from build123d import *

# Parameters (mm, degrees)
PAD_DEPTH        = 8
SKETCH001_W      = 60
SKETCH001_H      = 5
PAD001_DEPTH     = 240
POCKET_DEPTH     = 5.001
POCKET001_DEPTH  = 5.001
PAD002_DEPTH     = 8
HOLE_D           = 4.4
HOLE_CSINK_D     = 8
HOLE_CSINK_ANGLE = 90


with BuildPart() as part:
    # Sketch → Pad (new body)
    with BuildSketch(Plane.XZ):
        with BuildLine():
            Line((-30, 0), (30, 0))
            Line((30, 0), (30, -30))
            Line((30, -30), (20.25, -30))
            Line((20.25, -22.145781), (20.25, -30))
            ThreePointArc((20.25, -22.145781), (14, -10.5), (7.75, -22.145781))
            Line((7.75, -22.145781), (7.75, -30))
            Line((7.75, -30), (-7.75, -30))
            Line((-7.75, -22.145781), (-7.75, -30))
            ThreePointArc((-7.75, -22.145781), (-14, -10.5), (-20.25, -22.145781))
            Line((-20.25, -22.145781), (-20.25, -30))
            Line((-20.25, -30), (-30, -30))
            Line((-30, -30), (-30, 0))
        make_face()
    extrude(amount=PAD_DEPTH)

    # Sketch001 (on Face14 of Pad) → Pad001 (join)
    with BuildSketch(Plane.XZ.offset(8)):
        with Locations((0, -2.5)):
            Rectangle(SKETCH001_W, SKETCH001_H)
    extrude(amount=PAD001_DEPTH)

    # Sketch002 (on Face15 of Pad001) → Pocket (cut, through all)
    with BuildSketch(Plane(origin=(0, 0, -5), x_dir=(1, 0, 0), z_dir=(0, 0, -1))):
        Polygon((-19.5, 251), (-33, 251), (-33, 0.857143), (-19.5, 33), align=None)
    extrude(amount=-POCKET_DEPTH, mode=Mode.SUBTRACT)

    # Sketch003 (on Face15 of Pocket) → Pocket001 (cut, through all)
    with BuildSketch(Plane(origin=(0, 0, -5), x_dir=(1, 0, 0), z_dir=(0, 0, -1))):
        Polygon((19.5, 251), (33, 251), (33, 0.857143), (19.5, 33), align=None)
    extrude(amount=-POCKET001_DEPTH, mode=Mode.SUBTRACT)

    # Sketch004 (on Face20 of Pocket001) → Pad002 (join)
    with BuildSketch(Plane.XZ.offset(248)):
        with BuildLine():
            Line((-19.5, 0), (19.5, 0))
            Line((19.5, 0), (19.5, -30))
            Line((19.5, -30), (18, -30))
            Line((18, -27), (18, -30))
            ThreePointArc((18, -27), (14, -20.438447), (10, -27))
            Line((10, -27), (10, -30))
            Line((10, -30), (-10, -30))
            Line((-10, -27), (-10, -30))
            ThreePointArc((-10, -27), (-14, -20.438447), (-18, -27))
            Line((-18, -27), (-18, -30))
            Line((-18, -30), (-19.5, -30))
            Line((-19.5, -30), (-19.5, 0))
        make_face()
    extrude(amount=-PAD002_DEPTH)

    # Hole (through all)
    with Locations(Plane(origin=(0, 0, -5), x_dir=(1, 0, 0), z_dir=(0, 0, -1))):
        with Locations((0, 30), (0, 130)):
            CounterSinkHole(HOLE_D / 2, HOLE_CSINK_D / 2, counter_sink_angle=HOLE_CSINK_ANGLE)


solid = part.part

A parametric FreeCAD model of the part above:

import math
import FreeCAD as App
import Part
import Sketcher
from FreeCAD import Vector
Q = App.Units.Quantity


def add_polygon(sketch, points):
    """Adds a closed chain of lines whose ends are joined by coincident constraints."""
    first, n = sketch.GeometryCount, len(points)
    for a, b in zip(points, points[1:] + points[:1]):
        sketch.addGeometry(Part.LineSegment(App.Vector(*a, 0), App.Vector(*b, 0)), False)
    for i in range(n):
        sketch.addConstraint(Sketcher.Constraint("Coincident", first + i, 2, first + (i + 1) % n, 1))

doc = App.newDocument("Part")
params = doc.addObject("Spreadsheet::Sheet", "Params")
for row, (alias, value) in enumerate([
    ("sketch1_radius", "7.5 mm"),
    ("sketch1_width", "60 mm"),
    ("sketch1_height", "30 mm"),
    ("sketch1_width2", "15.5 mm"),
    ("pad1_length", "8 mm"),
    ("sketch2_width", "60 mm"),
    ("sketch2_height", "5 mm"),
    ("pad2_length", "240 mm"),
    ("sketch3_height", "218 mm"),
    ("sketch3_width", "13.5 mm"),
    ("sketch4_height", "218 mm"),
    ("sketch4_width", "13.5 mm"),
    ("sketch5_radius", "4.5 mm"),
    ("sketch5_width", "39 mm"),
    ("sketch5_width2", "20 mm"),
    ("sketch5_height", "30 mm"),
    ("sketch5_height2", "3 mm"),
    ("pad3_length", "8 mm"),
    ("sketch6_diameter", "4.4 mm"),
    ("hole_diameter", "4.4 mm"),
    ("hole_csink_diameter", "8 mm"),
], start=1):
    params.set(f"A{row}", alias)
    params.set(f"B{row}", "=" + value)
    params.setAlias(f"B{row}", alias)

body = doc.addObject("PartDesign::Body", "Body")

# Sketch on XZ plane
sketch1 = body.newObject("Sketcher::SketchObject", "Sketch")
sketch1.AttachmentSupport = (doc.getObject("XZ_Plane"), [""])
sketch1.MapMode = "FlatFace"
sketch1.addGeometry([
    Part.LineSegment(Vector(30, 0, 0), Vector(-30, 0, 0)),  # 0
    Part.LineSegment(Vector(-30, 0, 0), Vector(-30, -30, 0)),  # 1
    Part.LineSegment(Vector(-30, -30, 0), Vector(-20, -30, 0)),  # 2
    Part.LineSegment(Vector(-20, -30, 0), Vector(-20, -22, 0)),  # 3
    Part.ArcOfCircle(Part.Circle(Vector(-14, -18, 0), Vector(0, 0, 1), 8), math.radians(-34), math.radians(214)),  # 4
    Part.LineSegment(Vector(-8, -22, 0), Vector(-8, -30, 0)),  # 5
    Part.LineSegment(Vector(-8, -30, 0), Vector(8, -30, 0)),  # 6
    Part.LineSegment(Vector(8, -30, 0), Vector(8, -22, 0)),  # 7
    Part.ArcOfCircle(Part.Circle(Vector(14, -18, 0), Vector(0, 0, 1), 8), math.radians(-34), math.radians(214)),  # 8
    Part.LineSegment(Vector(20, -22, 0), Vector(20, -30, 0)),  # 9
    Part.LineSegment(Vector(20, -30, 0), Vector(30, -30, 0)),  # 10
    Part.LineSegment(Vector(30, -30, 0), Vector(30, 0, 0)),  # 11
], False)
sketch1.addConstraint([
    Sketcher.Constraint("Coincident", 0, 2, 1, 1),
    Sketcher.Constraint("Coincident", 1, 2, 2, 1),
    Sketcher.Constraint("Coincident", 2, 2, 3, 1),
    Sketcher.Constraint("Coincident", 3, 2, 4, 2),
    Sketcher.Constraint("Coincident", 4, 1, 5, 1),
    Sketcher.Constraint("Coincident", 5, 2, 6, 1),
    Sketcher.Constraint("Coincident", 6, 2, 7, 1),
    Sketcher.Constraint("Coincident", 7, 2, 8, 2),
    Sketcher.Constraint("Coincident", 8, 1, 9, 1),
    Sketcher.Constraint("Coincident", 9, 2, 10, 1),
    Sketcher.Constraint("Coincident", 10, 2, 11, 1),
    Sketcher.Constraint("Coincident", 11, 2, 0, 1),
    Sketcher.Constraint("Horizontal", 0),
    Sketcher.Constraint("Vertical", 1),
    Sketcher.Constraint("Horizontal", 2),
    Sketcher.Constraint("Vertical", 3),
    Sketcher.Constraint("Vertical", 5),
    Sketcher.Constraint("Horizontal", 6),
    Sketcher.Constraint("Vertical", 7),
    Sketcher.Constraint("Vertical", 9),
    Sketcher.Constraint("Horizontal", 10),
    Sketcher.Constraint("Vertical", 11),
    Sketcher.Constraint("Equal", 4, 8),
    Sketcher.Constraint("Symmetric", 0, 2, 11, 2, -1, 1),
    Sketcher.Constraint("Symmetric", 4, 3, 8, 3, -2),
    Sketcher.Constraint("Symmetric", 2, 2, 9, 2, -2),
    Sketcher.Constraint("Horizontal", 3, 2, 4, 1),
    Sketcher.Constraint("Horizontal", 2, 2, 5, 2),
    Sketcher.Constraint("Horizontal", 4, 1, 7, 2),
    Sketcher.Constraint("Radius", 4, Q("7.5 mm")),
    Sketcher.Constraint("DistanceX", 0, 2, 0, 1, Q("60 mm")),
    Sketcher.Constraint("DistanceY", 1, 2, 1, 1, Q("30 mm")),
    Sketcher.Constraint("DistanceX", 6, 1, 6, 2, Q("15.5 mm")),
    Sketcher.Constraint("DistanceX", 4, 3, -1, 1, Q("14 mm")),
    Sketcher.Constraint("DistanceY", 4, 3, -1, 1, Q("18 mm")),
])
sketch1.setExpression("Constraints[29]", "Params.sketch1_radius")
sketch1.setExpression("Constraints[30]", "Params.sketch1_width")
sketch1.setExpression("Constraints[31]", "Params.sketch1_height")
sketch1.setExpression("Constraints[32]", "Params.sketch1_width2")
pad1 = body.newObject("PartDesign::Pad", "Pad")
pad1.Profile = sketch1
pad1.setExpression("Length", "Params.pad1_length")

# Sketch on XZ plane
sketch2 = body.newObject("Sketcher::SketchObject", "Sketch001")
sketch2.AttachmentSupport = (doc.getObject("XZ_Plane"), [""])
sketch2.MapMode = "FlatFace"
sketch2.AttachmentOffset = App.Placement(Vector(0, 0, 8), App.Rotation())
add_polygon(sketch2, [(-30, 0), (-30, -5), (30, -5), (30, 0)])  # lines 0-3
sketch2.addConstraint([
    Sketcher.Constraint("Vertical", 0),
    Sketcher.Constraint("Horizontal", 1),
    Sketcher.Constraint("Vertical", 2),
    Sketcher.Constraint("Horizontal", 3),
    Sketcher.Constraint("Symmetric", 2, 2, 3, 2, -1, 1),
    Sketcher.Constraint("DistanceX", 1, 1, 1, 2, Q("60 mm")),
    Sketcher.Constraint("DistanceY", 0, 2, 0, 1, Q("5 mm")),
])
sketch2.setExpression("Constraints[9]", "Params.sketch2_width")
sketch2.setExpression("Constraints[10]", "Params.sketch2_height")
pad2 = body.newObject("PartDesign::Pad", "Pad001")
pad2.Profile = sketch2
pad2.setExpression("Length", "Params.pad2_length")

# Sketch on XY plane
sketch3 = body.newObject("Sketcher::SketchObject", "Sketch002")
sketch3.AttachmentSupport = (doc.getObject("XY_Plane"), [""])
sketch3.MapMode = "FlatFace"
sketch3.AttachmentOffset = App.Placement(Vector(0, 0, -5), App.Rotation())
add_polygon(sketch3, [(-20, -251), (-33, -251), (-33, -1), (-20, -33)])  # lines 0-3
sketch3.addConstraint([
    Sketcher.Constraint("Horizontal", 0),
    Sketcher.Constraint("Vertical", 1),
    Sketcher.Constraint("Vertical", 3),
    Sketcher.Constraint("DistanceY", 3, 2, 3, 1, Q("218 mm")),
    Sketcher.Constraint("DistanceX", 0, 2, 0, 1, Q("13.5 mm")),
    Sketcher.Constraint("DistanceX", 0, 2, -1, 1, Q("33 mm")),
    Sketcher.Constraint("DistanceY", 0, 2, -1, 1, Q("251 mm")),
    Sketcher.Constraint("DistanceY", 1, 1, 1, 2, Q("250.142857 mm")),
])
sketch3.setExpression("Constraints[7]", "Params.sketch3_height")
sketch3.setExpression("Constraints[8]", "Params.sketch3_width")
pocket1 = body.newObject("PartDesign::Pocket", "Pocket")
pocket1.Profile = sketch3
pocket1.Type = "ThroughAll"
pocket1.Reversed = True

# Sketch on XY plane
sketch4 = body.newObject("Sketcher::SketchObject", "Sketch003")
sketch4.AttachmentSupport = (doc.getObject("XY_Plane"), [""])
sketch4.MapMode = "FlatFace"
sketch4.AttachmentOffset = App.Placement(Vector(0, 0, -5), App.Rotation())
add_polygon(sketch4, [(33, -251), (20, -251), (20, -33), (33, -1)])  # lines 0-3
sketch4.addConstraint([
    Sketcher.Constraint("Horizontal", 0),
    Sketcher.Constraint("Vertical", 1),
    Sketcher.Constraint("Vertical", 3),
    Sketcher.Constraint("DistanceY", 1, 1, 1, 2, Q("218 mm")),
    Sketcher.Constraint("DistanceX", 0, 2, 0, 1, Q("13.5 mm")),
    Sketcher.Constraint("DistanceY", 0, 2, -1, 1, Q("251 mm")),
    Sketcher.Constraint("DistanceX", -1, 1, 2, 2, Q("33 mm")),
    Sketcher.Constraint("DistanceY", 3, 2, 3, 1, Q("250.142857 mm")),
])
sketch4.setExpression("Constraints[7]", "Params.sketch4_height")
sketch4.setExpression("Constraints[8]", "Params.sketch4_width")
pocket2 = body.newObject("PartDesign::Pocket", "Pocket001")
pocket2.Profile = sketch4
pocket2.Type = "ThroughAll"
pocket2.Reversed = True

# Sketch on XZ plane
sketch5 = body.newObject("Sketcher::SketchObject", "Sketch004")
sketch5.AttachmentSupport = (doc.getObject("XZ_Plane"), [""])
sketch5.MapMode = "FlatFace"
sketch5.AttachmentOffset = App.Placement(Vector(0, 0, 248), App.Rotation())
sketch5.addGeometry([
    Part.LineSegment(Vector(19.5, 0, 0), Vector(-19.5, 0, 0)),  # 0
    Part.LineSegment(Vector(-19.5, 0, 0), Vector(-19.5, -30, 0)),  # 1
    Part.LineSegment(Vector(-19.5, -30, 0), Vector(-18, -30, 0)),  # 2
    Part.LineSegment(Vector(-18, -30, 0), Vector(-18, -27, 0)),  # 3
    Part.ArcOfCircle(Part.Circle(Vector(-14, -24.9, 0), Vector(0, 0, 1), 4.5), math.radians(-27), math.radians(207)),  # 4
    Part.LineSegment(Vector(-10, -27, 0), Vector(-10, -30, 0)),  # 5
    Part.LineSegment(Vector(-10, -30, 0), Vector(10, -30, 0)),  # 6
    Part.LineSegment(Vector(10, -30, 0), Vector(10, -27, 0)),  # 7
    Part.ArcOfCircle(Part.Circle(Vector(14, -24.9, 0), Vector(0, 0, 1), 4.5), math.radians(-27), math.radians(207)),  # 8
    Part.LineSegment(Vector(18, -27, 0), Vector(18, -30, 0)),  # 9
    Part.LineSegment(Vector(18, -30, 0), Vector(19.5, -30, 0)),  # 10
    Part.LineSegment(Vector(19.5, -30, 0), Vector(19.5, 0, 0)),  # 11
], False)
sketch5.addConstraint([
    Sketcher.Constraint("Coincident", 0, 2, 1, 1),
    Sketcher.Constraint("Coincident", 1, 2, 2, 1),
    Sketcher.Constraint("Coincident", 2, 2, 3, 1),
    Sketcher.Constraint("Coincident", 3, 2, 4, 2),
    Sketcher.Constraint("Coincident", 4, 1, 5, 1),
    Sketcher.Constraint("Coincident", 5, 2, 6, 1),
    Sketcher.Constraint("Coincident", 6, 2, 7, 1),
    Sketcher.Constraint("Coincident", 7, 2, 8, 2),
    Sketcher.Constraint("Coincident", 8, 1, 9, 1),
    Sketcher.Constraint("Coincident", 9, 2, 10, 1),
    Sketcher.Constraint("Coincident", 10, 2, 11, 1),
    Sketcher.Constraint("Coincident", 11, 2, 0, 1),
    Sketcher.Constraint("Horizontal", 0),
    Sketcher.Constraint("Vertical", 1),
    Sketcher.Constraint("Horizontal", 2),
    Sketcher.Constraint("Vertical", 3),
    Sketcher.Constraint("Vertical", 5),
    Sketcher.Constraint("Horizontal", 6),
    Sketcher.Constraint("Vertical", 7),
    Sketcher.Constraint("Vertical", 9),
    Sketcher.Constraint("Horizontal", 10),
    Sketcher.Constraint("Vertical", 11),
    Sketcher.Constraint("Equal", 4, 8),
    Sketcher.Constraint("Symmetric", 0, 2, 11, 2, -1, 1),
    Sketcher.Constraint("Symmetric", 4, 3, 8, 3, -2),
    Sketcher.Constraint("Symmetric", 2, 2, 9, 2, -2),
    Sketcher.Constraint("Horizontal", 3, 2, 4, 1),
    Sketcher.Constraint("Horizontal", 2, 2, 5, 2),
    Sketcher.Constraint("Horizontal", 4, 1, 7, 2),
    Sketcher.Constraint("Radius", 4, Q("4.5 mm")),
    Sketcher.Constraint("DistanceX", 0, 2, 0, 1, Q("39 mm")),
    Sketcher.Constraint("DistanceX", 6, 1, 6, 2, Q("20 mm")),
    Sketcher.Constraint("DistanceY", 1, 2, 1, 1, Q("30 mm")),
    Sketcher.Constraint("DistanceY", 3, 1, 3, 2, Q("3 mm")),
    Sketcher.Constraint("DistanceX", 2, 1, 2, 2, Q("1.5 mm")),
])
sketch5.setExpression("Constraints[29]", "Params.sketch5_radius")
sketch5.setExpression("Constraints[30]", "Params.sketch5_width")
sketch5.setExpression("Constraints[31]", "Params.sketch5_width2")
sketch5.setExpression("Constraints[32]", "Params.sketch5_height")
sketch5.setExpression("Constraints[33]", "Params.sketch5_height2")
pad3 = body.newObject("PartDesign::Pad", "Pad002")
pad3.Profile = sketch5
pad3.setExpression("Length", "Params.pad3_length")
pad3.Reversed = True

# Sketch on XY plane
sketch6 = body.newObject("Sketcher::SketchObject", "Sketch005")
sketch6.AttachmentSupport = (doc.getObject("XY_Plane"), [""])
sketch6.MapMode = "FlatFace"
sketch6.AttachmentOffset = App.Placement(Vector(0, 0, -5), App.Rotation())
sketch6.addGeometry([
    Part.Circle(Vector(0, -30, 0), Vector(0, 0, 1), 2.2),
    Part.Circle(Vector(0, -130, 0), Vector(0, 0, 1), 2.2),
], False)
sketch6.addConstraint([
    Sketcher.Constraint("Equal", 0, 1),
    Sketcher.Constraint("PointOnObject", 0, 3, -2),
    Sketcher.Constraint("PointOnObject", 1, 3, -2),
    Sketcher.Constraint("Diameter", 0, Q("4.4 mm")),
    Sketcher.Constraint("DistanceY", 0, 3, -1, 1, Q("30 mm")),
    Sketcher.Constraint("DistanceY", 1, 3, -1, 1, Q("130 mm")),
])
sketch6.setExpression("Constraints[3]", "Params.sketch6_diameter")
doc.recompute()
hole = body.newObject("PartDesign::Hole", "Hole")
hole.Profile = sketch6
hole.ThreadType = "None"
hole.setExpression("Diameter", "Params.hole_diameter")
hole.DepthType = "ThroughAll"
hole.HoleCutType = "Countersink"
hole.setExpression("HoleCutDiameter", "Params.hole_csink_diameter")
hole.HoleCutCountersinkAngle = 90
hole.Reversed = True

doc.recompute()
